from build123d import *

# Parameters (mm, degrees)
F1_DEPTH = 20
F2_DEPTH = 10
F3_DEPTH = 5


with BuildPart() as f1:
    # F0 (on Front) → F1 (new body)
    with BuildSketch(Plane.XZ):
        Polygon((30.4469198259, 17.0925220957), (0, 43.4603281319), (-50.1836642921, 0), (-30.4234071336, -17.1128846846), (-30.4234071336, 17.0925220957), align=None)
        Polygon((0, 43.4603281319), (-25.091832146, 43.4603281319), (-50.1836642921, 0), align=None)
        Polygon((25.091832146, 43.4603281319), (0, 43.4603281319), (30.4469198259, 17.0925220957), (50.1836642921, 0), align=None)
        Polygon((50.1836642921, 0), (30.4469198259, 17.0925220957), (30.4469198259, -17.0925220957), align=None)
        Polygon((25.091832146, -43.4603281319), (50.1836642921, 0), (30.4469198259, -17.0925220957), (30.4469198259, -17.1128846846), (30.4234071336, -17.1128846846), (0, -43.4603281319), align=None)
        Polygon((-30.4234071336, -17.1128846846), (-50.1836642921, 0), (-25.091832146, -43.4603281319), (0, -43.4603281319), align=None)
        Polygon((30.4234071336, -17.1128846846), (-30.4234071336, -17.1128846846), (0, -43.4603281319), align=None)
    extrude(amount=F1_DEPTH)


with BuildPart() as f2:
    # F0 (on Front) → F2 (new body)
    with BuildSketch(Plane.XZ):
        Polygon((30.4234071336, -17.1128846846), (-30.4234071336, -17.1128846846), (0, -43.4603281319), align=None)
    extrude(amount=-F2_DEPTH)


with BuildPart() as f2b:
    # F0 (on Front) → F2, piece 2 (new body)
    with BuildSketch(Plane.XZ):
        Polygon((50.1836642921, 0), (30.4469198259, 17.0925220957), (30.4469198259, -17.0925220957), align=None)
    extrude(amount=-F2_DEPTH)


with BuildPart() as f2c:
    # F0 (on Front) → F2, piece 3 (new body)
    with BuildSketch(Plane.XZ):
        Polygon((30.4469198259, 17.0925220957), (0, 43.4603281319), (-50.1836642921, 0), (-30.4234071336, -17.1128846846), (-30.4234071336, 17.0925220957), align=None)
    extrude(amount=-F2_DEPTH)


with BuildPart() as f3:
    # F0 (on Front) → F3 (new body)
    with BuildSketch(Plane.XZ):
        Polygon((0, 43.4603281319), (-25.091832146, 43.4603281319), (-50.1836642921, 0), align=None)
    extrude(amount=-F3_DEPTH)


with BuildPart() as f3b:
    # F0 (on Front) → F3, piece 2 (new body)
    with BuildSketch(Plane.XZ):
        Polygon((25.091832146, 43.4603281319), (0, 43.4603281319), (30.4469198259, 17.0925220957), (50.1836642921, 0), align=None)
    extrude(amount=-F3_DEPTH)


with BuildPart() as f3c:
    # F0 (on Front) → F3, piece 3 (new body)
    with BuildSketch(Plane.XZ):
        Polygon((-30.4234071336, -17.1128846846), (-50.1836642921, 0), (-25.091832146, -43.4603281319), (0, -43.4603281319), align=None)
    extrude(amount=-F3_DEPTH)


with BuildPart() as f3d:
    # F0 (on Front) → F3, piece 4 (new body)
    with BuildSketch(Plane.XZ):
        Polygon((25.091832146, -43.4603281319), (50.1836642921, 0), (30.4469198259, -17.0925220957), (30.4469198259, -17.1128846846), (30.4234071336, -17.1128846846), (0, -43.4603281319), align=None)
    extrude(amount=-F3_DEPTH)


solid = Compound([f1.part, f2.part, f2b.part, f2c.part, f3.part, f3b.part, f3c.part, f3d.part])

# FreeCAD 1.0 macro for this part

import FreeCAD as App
import Part
import Sketcher
Q = App.Units.Quantity


def add_polygon(sketch, points):
    """Adds a closed chain of lines whose ends are joined by coincident constraints."""
    first, n = sketch.GeometryCount, len(points)
    for a, b in zip(points, points[1:] + points[:1]):
        sketch.addGeometry(Part.LineSegment(App.Vector(*a, 0), App.Vector(*b, 0)), False)
    for i in range(n):
        sketch.addConstraint(Sketcher.Constraint("Coincident", first + i, 2, first + (i + 1) % n, 1))

doc = App.newDocument("Part")
params = doc.addObject("Spreadsheet::Sheet", "Params")
for row, (alias, value) in enumerate([
    ("pad1_length", "20 mm"),
    ("pad2_length", "10 mm"),
    ("pad3_length", "10 mm"),
    ("pad4_length", "10 mm"),
    ("pad5_length", "5 mm"),
    ("pad6_length", "5 mm"),
    ("pad7_length", "5 mm"),
    ("pad8_length", "5 mm"),
], start=1):
    params.set(f"A{row}", alias)
    params.set(f"B{row}", "=" + value)
    params.setAlias(f"B{row}", alias)

body = doc.addObject("PartDesign::Body", "Body")

sketch1 = body.newObject("Sketcher::SketchObject", "Sketch")
sketch1.AttachmentSupport = (doc.getObject("XZ_Plane"), [""])
sketch1.MapMode = "FlatFace"
add_polygon(sketch1, [(-25, -43), (25, -43), (50, 0), (25, 43), (-25, 43), (-50, 0)])
add_polygon(sketch1, [(30, -17), (-30, -17), (-30, 17), (30, 17)])
sketch1.addConstraint(Sketcher.Constraint("Horizontal", 0))
sketch1.addConstraint(Sketcher.Constraint("Horizontal", 3))
sketch1.addConstraint(Sketcher.Constraint("Horizontal", 6))
sketch1.addConstraint(Sketcher.Constraint("Vertical", 7))
sketch1.addConstraint(Sketcher.Constraint("Horizontal", 8))
sketch1.addConstraint(Sketcher.Constraint("Vertical", 9))
sketch1.addConstraint(Sketcher.Constraint("Symmetric", 0, 2, 3, 2, -1, 1))
sketch1.addConstraint(Sketcher.Constraint("Symmetric", 1, 2, 4, 2, -1, 1))
sketch1.addConstraint(Sketcher.Constraint("PointOnObject", 1, 2, -1))
sketch1.addConstraint(Sketcher.Constraint("Parallel", 2, 5))
sketch1.addConstraint(Sketcher.Constraint("Vertical", 0, 2, 2, 2))
sketch1.addConstraint(Sketcher.Constraint("Angle", 1, Q("60 deg")))
sketch1.addConstraint(Sketcher.Constraint("DistanceX", 0, 1, 0, 2, 50.183664))
sketch1.addConstraint(Sketcher.Constraint("DistanceX", 6, 2, 6, 1, 60.870327))
sketch1.addConstraint(Sketcher.Constraint("DistanceY", 7, 1, 7, 2, 34.205407))
sketch1.addConstraint(Sketcher.Constraint("DistanceY", 0, 2, -1, 1, 43.460328))
sketch1.addConstraint(Sketcher.Constraint("DistanceX", -1, 1, 8, 2, 30.44692))
sketch1.addConstraint(Sketcher.Constraint("DistanceY", 5, 2, 7, 2, 60.55285))
pad1 = body.newObject("PartDesign::Pad", "Pad")
pad1.Profile = sketch1
pad1.setExpression("Length", "Params.pad1_length")
body2 = doc.addObject("PartDesign::Body", "Body001")

sketch2 = body2.newObject("Sketcher::SketchObject", "Sketch001")
sketch2.AttachmentSupport = (doc.getObject("XZ_Plane001"), [""])
sketch2.MapMode = "FlatFace"
add_polygon(sketch2, [(30, -17), (-30, -17), (0, -43)])
sketch2.addConstraint(Sketcher.Constraint("Horizontal", 0))
sketch2.addConstraint(Sketcher.Constraint("PointOnObject", 1, 2, -2))
sketch2.addConstraint(Sketcher.Constraint("Equal", 1, 2))
sketch2.addConstraint(Sketcher.Constraint("DistanceX", 0, 2, 0, 1, 60.846814))
sketch2.addConstraint(Sketcher.Constraint("DistanceY", 1, 2, -1, 1, 43.460328))
sketch2.addConstraint(Sketcher.Constraint("Distance", 1, 40.246385))
pad2 = body2.newObject("PartDesign::Pad", "Pad001")
pad2.Profile = sketch2
pad2.setExpression("Length", "Params.pad2_length")
pad2.Reversed = True
body3 = doc.addObject("PartDesign::Body", "Body002")

sketch3 = body3.newObject("Sketcher::SketchObject", "Sketch002")
sketch3.AttachmentSupport = (doc.getObject("XZ_Plane002"), [""])
sketch3.MapMode = "FlatFace"
add_polygon(sketch3, [(50, 0), (30, 17), (30, -17)])
sketch3.addConstraint(Sketcher.Constraint("Vertical", 1))
sketch3.addConstraint(Sketcher.Constraint("PointOnObject", 2, 2, -1))
sketch3.addConstraint(Sketcher.Constraint("Equal", 0, 2))
sketch3.addConstraint(Sketcher.Constraint("Distance", 0, 26.109259))
sketch3.addConstraint(Sketcher.Constraint("DistanceY", 1, 2, 1, 1, 34.185044))
sketch3.addConstraint(Sketcher.Constraint("DistanceX", -1, 1, 0, 2, 30.44692))
pad3 = body3.newObject("PartDesign::Pad", "Pad002")
pad3.Profile = sketch3
pad3.setExpression("Length", "Params.pad3_length")
pad3.Reversed = True
body4 = doc.addObject("PartDesign::Body", "Body003")

sketch4 = body4.newObject("Sketcher::SketchObject", "Sketch003")
sketch4.AttachmentSupport = (doc.getObject("XZ_Plane003"), [""])
sketch4.MapMode = "FlatFace"
add_polygon(sketch4, [(30, 17), (0, 43), (-50, 0), (-30, -17), (-30, 17)])
sketch4.addConstraint(Sketcher.Constraint("Vertical", 3))
sketch4.addConstraint(Sketcher.Constraint("Horizontal", 4))
sketch4.addConstraint(Sketcher.Constraint("PointOnObject", 0, 2, -2))
sketch4.addConstraint(Sketcher.Constraint("PointOnObject", 1, 2, -1))
sketch4.addConstraint(Sketcher.Constraint("Parallel", 0, 2))
sketch4.addConstraint(Sketcher.Constraint("Distance", 0, 40.277489))
sketch4.addConstraint(Sketcher.Constraint("DistanceX", 4, 1, 4, 2, 60.870327))
sketch4.addConstraint(Sketcher.Constraint("DistanceY", 3, 1, 3, 2, 34.205407))
sketch4.addConstraint(Sketcher.Constraint("DistanceY", -1, 1, 0, 2, 43.460328))
sketch4.addConstraint(Sketcher.Constraint("DistanceX", -1, 1, 4, 2, 30.44692))
pad4 = body4.newObject("PartDesign::Pad", "Pad003")
pad4.Profile = sketch4
pad4.setExpression("Length", "Params.pad4_length")
pad4.Reversed = True
body5 = doc.addObject("PartDesign::Body", "Body004")

sketch5 = body5.newObject("Sketcher::SketchObject", "Sketch004")
sketch5.AttachmentSupport = (doc.getObject("XZ_Plane004"), [""])
sketch5.MapMode = "FlatFace"
add_polygon(sketch5, [(0, 43), (-25, 43), (-50, 0)])
sketch5.addConstraint(Sketcher.Constraint("Horizontal", 0))
sketch5.addConstraint(Sketcher.Constraint("PointOnObject", 1, 2, -1))
sketch5.addConstraint(Sketcher.Constraint("PointOnObject", 2, 2, -2))
sketch5.addConstraint(Sketcher.Constraint("Angle", 1, Q("-120 deg")))
sketch5.addConstraint(Sketcher.Constraint("DistanceX", 0, 2, 0, 1, 25.091832))
sketch5.addConstraint(Sketcher.Constraint("DistanceY", -1, 1, 0, 2, 43.460328))
pad5 = body5.newObject("PartDesign::Pad", "Pad004")
pad5.Profile = sketch5
pad5.setExpression("Length", "Params.pad5_length")
pad5.Reversed = True
body6 = doc.addObject("PartDesign::Body", "Body005")

sketch6 = body6.newObject("Sketcher::SketchObject", "Sketch005")
sketch6.AttachmentSupport = (doc.getObject("XZ_Plane005"), [""])
sketch6.MapMode = "FlatFace"
add_polygon(sketch6, [(25, 43), (0, 43), (50, 0)])
sketch6.addConstraint(Sketcher.Constraint("Horizontal", 0))
sketch6.addConstraint(Sketcher.Constraint("PointOnObject", 0, 2, -2))
sketch6.addConstraint(Sketcher.Constraint("PointOnObject", 1, 2, -1))
sketch6.addConstraint(Sketcher.Constraint("Angle", 2, Q("120 deg")))
sketch6.addConstraint(Sketcher.Constraint("DistanceX", 0, 2, 0, 1, 25.091832))
sketch6.addConstraint(Sketcher.Constraint("DistanceY", -1, 1, 0, 2, 43.460328))
pad6 = body6.newObject("PartDesign::Pad", "Pad005")
pad6.Profile = sketch6
pad6.setExpression("Length", "Params.pad6_length")
pad6.Reversed = True
body7 = doc.addObject("PartDesign::Body", "Body006")

sketch7 = body7.newObject("Sketcher::SketchObject", "Sketch006")
sketch7.AttachmentSupport = (doc.getObject("XZ_Plane006"), [""])
sketch7.MapMode = "FlatFace"
add_polygon(sketch7, [(-30, -17), (-50, 0), (-25, -43), (0, -43)])
sketch7.addConstraint(Sketcher.Constraint("Horizontal", 2))
sketch7.addConstraint(Sketcher.Constraint("PointOnObject", 0, 2, -1))
sketch7.addConstraint(Sketcher.Constraint("PointOnObject", 2, 2, -2))
sketch7.addConstraint(Sketcher.Constraint("Parallel", 0, 3))
sketch7.addConstraint(Sketcher.Constraint("Angle", 1, Q("-60 deg")))
sketch7.addConstraint(Sketcher.Constraint("DistanceX", 2, 1, 2, 2, 25.091832))
sketch7.addConstraint(Sketcher.Constraint("DistanceY", 1, 2, -1, 1, 43.460328))
sketch7.addConstraint(Sketcher.Constraint("Distance", 0, 26.140363))
pad7 = body7.newObject("PartDesign::Pad", "Pad006")
pad7.Profile = sketch7
pad7.setExpression("Length", "Params.pad7_length")
pad7.Reversed = True
body8 = doc.addObject("PartDesign::Body", "Body007")

sketch8 = body8.newObject("Sketcher::SketchObject", "Sketch007")
sketch8.AttachmentSupport = (doc.getObject("XZ_Plane007"), [""])
sketch8.MapMode = "FlatFace"
add_polygon(sketch8, [(25.092, -43.46), (50.184, 0), (30.447, -17.093), (30.447, -17.113), (30.423, -17.113), (0, -43.46)])
sketch8.addConstraint(Sketcher.Constraint("Vertical", 2))
sketch8.addConstraint(Sketcher.Constraint("Horizontal", 3))
sketch8.addConstraint(Sketcher.Constraint("Horizontal", 5))
sketch8.addConstraint(Sketcher.Constraint("PointOnObject", 0, 2, -1))
sketch8.addConstraint(Sketcher.Constraint("PointOnObject", 4, 2, -2))
sketch8.addConstraint(Sketcher.Constraint("Parallel", 1, 4))
sketch8.addConstraint(Sketcher.Constraint("Angle", 0, Q("60 deg")))
sketch8.addConstraint(Sketcher.Constraint("Distance", 1, 26.109259))
sketch8.addConstraint(Sketcher.Constraint("DistanceX", 3, 2, 3, 1, 0.023513))
sketch8.addConstraint(Sketcher.Constraint("DistanceX", 5, 1, 5, 2, 25.091832))
sketch8.addConstraint(Sketcher.Constraint("DistanceY", 2, 2, 2, 1, 0.020363))
sketch8.addConstraint(Sketcher.Constraint("DistanceX", -1, 1, 1, 2, 30.44692))
pad8 = body8.newObject("PartDesign::Pad", "Pad007")
pad8.Profile = sketch8
pad8.setExpression("Length", "Params.pad8_length")
pad8.Reversed = True

doc.recompute()
